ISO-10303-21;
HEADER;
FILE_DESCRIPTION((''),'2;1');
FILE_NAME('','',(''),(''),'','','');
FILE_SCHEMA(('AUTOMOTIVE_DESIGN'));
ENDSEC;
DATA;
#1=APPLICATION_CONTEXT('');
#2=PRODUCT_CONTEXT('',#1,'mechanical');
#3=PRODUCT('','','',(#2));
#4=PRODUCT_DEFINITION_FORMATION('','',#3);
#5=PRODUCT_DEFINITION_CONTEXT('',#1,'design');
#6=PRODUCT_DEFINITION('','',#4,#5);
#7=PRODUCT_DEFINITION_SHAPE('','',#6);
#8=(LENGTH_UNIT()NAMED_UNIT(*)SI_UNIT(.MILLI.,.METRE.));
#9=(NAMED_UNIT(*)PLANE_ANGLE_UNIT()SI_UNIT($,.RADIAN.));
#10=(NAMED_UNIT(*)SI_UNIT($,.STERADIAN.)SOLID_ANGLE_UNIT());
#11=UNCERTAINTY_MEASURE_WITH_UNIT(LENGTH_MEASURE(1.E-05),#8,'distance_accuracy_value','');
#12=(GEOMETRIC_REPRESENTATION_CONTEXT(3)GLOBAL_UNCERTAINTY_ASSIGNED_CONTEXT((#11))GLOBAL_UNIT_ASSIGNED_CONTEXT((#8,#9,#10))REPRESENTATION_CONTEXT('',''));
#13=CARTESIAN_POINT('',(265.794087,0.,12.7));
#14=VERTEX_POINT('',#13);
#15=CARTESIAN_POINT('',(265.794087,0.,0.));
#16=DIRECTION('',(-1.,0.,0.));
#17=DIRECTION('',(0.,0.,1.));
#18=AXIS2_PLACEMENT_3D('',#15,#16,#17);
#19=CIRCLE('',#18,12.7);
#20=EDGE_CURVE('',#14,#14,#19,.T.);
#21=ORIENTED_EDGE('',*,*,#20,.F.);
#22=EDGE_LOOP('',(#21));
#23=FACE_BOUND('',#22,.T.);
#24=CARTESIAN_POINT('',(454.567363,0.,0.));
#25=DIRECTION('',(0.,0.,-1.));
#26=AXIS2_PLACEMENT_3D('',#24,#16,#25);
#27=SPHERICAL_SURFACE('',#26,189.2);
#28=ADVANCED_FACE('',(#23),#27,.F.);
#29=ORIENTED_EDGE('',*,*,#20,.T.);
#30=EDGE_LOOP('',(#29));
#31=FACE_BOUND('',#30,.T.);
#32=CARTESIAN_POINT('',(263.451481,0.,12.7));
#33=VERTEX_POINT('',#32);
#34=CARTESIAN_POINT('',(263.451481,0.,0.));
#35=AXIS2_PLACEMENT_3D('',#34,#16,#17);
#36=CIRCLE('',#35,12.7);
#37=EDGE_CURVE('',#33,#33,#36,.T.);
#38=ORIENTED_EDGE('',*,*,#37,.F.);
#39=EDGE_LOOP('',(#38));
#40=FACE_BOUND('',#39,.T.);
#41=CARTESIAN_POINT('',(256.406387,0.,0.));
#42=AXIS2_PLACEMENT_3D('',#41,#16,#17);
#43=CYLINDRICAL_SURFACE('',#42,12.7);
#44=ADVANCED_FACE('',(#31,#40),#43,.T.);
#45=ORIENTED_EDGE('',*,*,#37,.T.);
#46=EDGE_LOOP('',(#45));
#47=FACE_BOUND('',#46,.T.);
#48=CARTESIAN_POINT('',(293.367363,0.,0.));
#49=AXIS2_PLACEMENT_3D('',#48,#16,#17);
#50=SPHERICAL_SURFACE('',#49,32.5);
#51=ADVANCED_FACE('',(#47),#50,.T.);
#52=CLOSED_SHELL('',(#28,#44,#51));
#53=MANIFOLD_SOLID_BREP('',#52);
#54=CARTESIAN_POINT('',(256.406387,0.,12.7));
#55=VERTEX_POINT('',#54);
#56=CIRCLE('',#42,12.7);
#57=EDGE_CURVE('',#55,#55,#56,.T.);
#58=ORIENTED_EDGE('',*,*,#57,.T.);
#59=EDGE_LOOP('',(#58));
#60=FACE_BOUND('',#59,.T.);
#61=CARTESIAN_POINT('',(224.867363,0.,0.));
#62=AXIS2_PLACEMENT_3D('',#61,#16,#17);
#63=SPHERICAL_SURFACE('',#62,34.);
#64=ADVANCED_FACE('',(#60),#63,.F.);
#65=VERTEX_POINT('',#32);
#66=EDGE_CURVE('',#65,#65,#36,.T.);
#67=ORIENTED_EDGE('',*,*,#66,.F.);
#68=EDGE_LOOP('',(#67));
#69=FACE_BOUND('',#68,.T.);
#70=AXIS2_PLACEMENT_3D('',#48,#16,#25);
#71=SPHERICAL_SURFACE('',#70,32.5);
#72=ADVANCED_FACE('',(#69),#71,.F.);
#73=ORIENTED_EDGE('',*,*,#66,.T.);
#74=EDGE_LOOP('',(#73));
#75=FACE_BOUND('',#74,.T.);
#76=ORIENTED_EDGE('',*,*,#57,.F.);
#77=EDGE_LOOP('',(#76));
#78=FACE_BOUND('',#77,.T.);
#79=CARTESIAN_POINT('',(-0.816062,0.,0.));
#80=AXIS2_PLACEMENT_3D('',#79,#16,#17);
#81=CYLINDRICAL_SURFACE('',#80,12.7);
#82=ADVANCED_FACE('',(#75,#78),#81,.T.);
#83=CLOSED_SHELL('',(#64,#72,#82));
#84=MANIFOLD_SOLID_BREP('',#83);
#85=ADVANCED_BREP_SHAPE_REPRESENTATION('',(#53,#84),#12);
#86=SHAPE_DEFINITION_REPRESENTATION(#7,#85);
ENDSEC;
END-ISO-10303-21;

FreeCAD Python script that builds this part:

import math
import FreeCAD as App
import Part
import Sketcher
Q = App.Units.Quantity

doc = App.newDocument("Part")
params = doc.addObject("Spreadsheet::Sheet", "Params")
for row, (alias, value) in enumerate([
    ("sketch1_radius", "34 mm"),
    ("sketch1_radius2", "32.5 mm"),
    ("sketch1_width", "2 mm"),
    ("revolution_angle", "360 deg"),
    ("sketch2_radius", "32.5 mm"),
    ("sketch2_radius2", "189.200001 mm"),
    ("sketch2_width", "4.5 mm"),
    ("revolution2_angle", "360 deg"),
], start=1):
    params.set(f"A{row}", alias)
    params.set(f"B{row}", "=" + value)
    params.setAlias(f"B{row}", alias)

body = doc.addObject("PartDesign::Body", "Body")

# Sketch on XZ plane
sketch1 = body.newObject("Sketcher::SketchObject", "Sketch")
sketch1.AttachmentSupport = (doc.getObject("XZ_Plane"), [""])
sketch1.MapMode = "FlatFace"
sketch1.addGeometry([
    Part.LineSegment(App.Vector(263.451481, -12.7, 0), App.Vector(256.406387, -12.7, 0)),
    Part.ArcOfCircle(Part.Circle(App.Vector(224.867363, 0, 0), App.Vector(0, 0, 1), 34), math.radians(-21.933451), math.radians(0)),
    Part.LineSegment(App.Vector(258.867363, 0, 0), App.Vector(260.867363, 0, 0)),
    Part.ArcOfCircle(Part.Circle(App.Vector(293.367363, 0, 0), App.Vector(0, 0, 1), 32.5), math.radians(-180), math.radians(-156.997628)),
], False)
sketch1.addConstraint([
    Sketcher.Constraint("Coincident", 0, 2, 1, 1),
    Sketcher.Constraint("Coincident", 1, 2, 2, 1),
    Sketcher.Constraint("Coincident", 2, 2, 3, 1),
    Sketcher.Constraint("Coincident", 3, 2, 0, 1),
    Sketcher.Constraint("Horizontal", 0),
    Sketcher.Constraint("Horizontal", 2),
    Sketcher.Constraint("PointOnObject", 1, 3, -1),
    Sketcher.Constraint("PointOnObject", 3, 3, -1),
    Sketcher.Constraint("PointOnObject", 1, 2, -1),
    Sketcher.Constraint("Radius", 1, Q("34 mm")),
    Sketcher.Constraint("Radius", 3, Q("32.5 mm")),
    Sketcher.Constraint("DistanceX", 2, 1, 2, 2, Q("2 mm")),
    Sketcher.Constraint("DistanceY", 0, 2, -1, 1, Q("12.7 mm")),
    Sketcher.Constraint("DistanceX", -1, 1, 3, 2, Q("263.451481 mm")),
])
sketch1.setExpression("Constraints[9]", "Params.sketch1_radius")
sketch1.setExpression("Constraints[10]", "Params.sketch1_radius2")
sketch1.setExpression("Constraints[11]", "Params.sketch1_width")
revolution = body.newObject("PartDesign::Revolution", "Revolution")
revolution.Profile = sketch1
revolution.ReferenceAxis = (sketch1, ["H_Axis"])
revolution.setExpression("Angle", "Params.revolution_angle")
body2 = doc.addObject("PartDesign::Body", "Body001")

# Sketch on XZ plane
sketch2 = body2.newObject("Sketcher::SketchObject", "Sketch001")
sketch2.AttachmentSupport = (doc.getObject("XZ_Plane001"), [""])
sketch2.MapMode = "FlatFace"
sketch2.addGeometry([
    Part.LineSegment(App.Vector(265.794087, -12.7, 0), App.Vector(263.451481, -12.7, 0)),
    Part.ArcOfCircle(Part.Circle(App.Vector(293.367363, 0, 0), App.Vector(0, 0, 1), 32.5), math.radians(-180), math.radians(-156.997628)),
    Part.LineSegment(App.Vector(260.867363, 0, 0), App.Vector(265.367363, 0, 0)),
    Part.ArcOfCircle(Part.Circle(App.Vector(454.567364, 0, 0), App.Vector(0, 0, 1), 189.200001), math.radians(-180), math.radians(-176.151142)),
], False)
sketch2.addConstraint([
    Sketcher.Constraint("Coincident", 0, 2, 1, 2),
    Sketcher.Constraint("Coincident", 1, 1, 2, 1),
    Sketcher.Constraint("Coincident", 2, 2, 3, 1),
    Sketcher.Constraint("Coincident", 3, 2, 0, 1),
    Sketcher.Constraint("Horizontal", 0),
    Sketcher.Constraint("Horizontal", 2),
    Sketcher.Constraint("PointOnObject", 1, 3, -1),
    Sketcher.Constraint("PointOnObject", 3, 3, -1),
    Sketcher.Constraint("PointOnObject", 1, 1, -1),
    Sketcher.Constraint("Radius", 1, Q("32.5 mm")),
    Sketcher.Constraint("Radius", 3, Q("189.200001 mm")),
    Sketcher.Constraint("DistanceX", 2, 1, 2, 2, Q("4.5 mm")),
    Sketcher.Constraint("DistanceY", 0, 2, -1, 1, Q("12.7 mm")),
    Sketcher.Constraint("DistanceX", -1, 1, 0, 2, Q("263.451481 mm")),
])
sketch2.setExpression("Constraints[9]", "Params.sketch2_radius")
sketch2.setExpression("Constraints[10]", "Params.sketch2_radius2")
sketch2.setExpression("Constraints[11]", "Params.sketch2_width")
revolution2 = body2.newObject("PartDesign::Revolution", "Revolution001")
revolution2.Profile = sketch2
revolution2.ReferenceAxis = (sketch2, ["H_Axis"])
revolution2.setExpression("Angle", "Params.revolution2_angle")

doc.recompute()
